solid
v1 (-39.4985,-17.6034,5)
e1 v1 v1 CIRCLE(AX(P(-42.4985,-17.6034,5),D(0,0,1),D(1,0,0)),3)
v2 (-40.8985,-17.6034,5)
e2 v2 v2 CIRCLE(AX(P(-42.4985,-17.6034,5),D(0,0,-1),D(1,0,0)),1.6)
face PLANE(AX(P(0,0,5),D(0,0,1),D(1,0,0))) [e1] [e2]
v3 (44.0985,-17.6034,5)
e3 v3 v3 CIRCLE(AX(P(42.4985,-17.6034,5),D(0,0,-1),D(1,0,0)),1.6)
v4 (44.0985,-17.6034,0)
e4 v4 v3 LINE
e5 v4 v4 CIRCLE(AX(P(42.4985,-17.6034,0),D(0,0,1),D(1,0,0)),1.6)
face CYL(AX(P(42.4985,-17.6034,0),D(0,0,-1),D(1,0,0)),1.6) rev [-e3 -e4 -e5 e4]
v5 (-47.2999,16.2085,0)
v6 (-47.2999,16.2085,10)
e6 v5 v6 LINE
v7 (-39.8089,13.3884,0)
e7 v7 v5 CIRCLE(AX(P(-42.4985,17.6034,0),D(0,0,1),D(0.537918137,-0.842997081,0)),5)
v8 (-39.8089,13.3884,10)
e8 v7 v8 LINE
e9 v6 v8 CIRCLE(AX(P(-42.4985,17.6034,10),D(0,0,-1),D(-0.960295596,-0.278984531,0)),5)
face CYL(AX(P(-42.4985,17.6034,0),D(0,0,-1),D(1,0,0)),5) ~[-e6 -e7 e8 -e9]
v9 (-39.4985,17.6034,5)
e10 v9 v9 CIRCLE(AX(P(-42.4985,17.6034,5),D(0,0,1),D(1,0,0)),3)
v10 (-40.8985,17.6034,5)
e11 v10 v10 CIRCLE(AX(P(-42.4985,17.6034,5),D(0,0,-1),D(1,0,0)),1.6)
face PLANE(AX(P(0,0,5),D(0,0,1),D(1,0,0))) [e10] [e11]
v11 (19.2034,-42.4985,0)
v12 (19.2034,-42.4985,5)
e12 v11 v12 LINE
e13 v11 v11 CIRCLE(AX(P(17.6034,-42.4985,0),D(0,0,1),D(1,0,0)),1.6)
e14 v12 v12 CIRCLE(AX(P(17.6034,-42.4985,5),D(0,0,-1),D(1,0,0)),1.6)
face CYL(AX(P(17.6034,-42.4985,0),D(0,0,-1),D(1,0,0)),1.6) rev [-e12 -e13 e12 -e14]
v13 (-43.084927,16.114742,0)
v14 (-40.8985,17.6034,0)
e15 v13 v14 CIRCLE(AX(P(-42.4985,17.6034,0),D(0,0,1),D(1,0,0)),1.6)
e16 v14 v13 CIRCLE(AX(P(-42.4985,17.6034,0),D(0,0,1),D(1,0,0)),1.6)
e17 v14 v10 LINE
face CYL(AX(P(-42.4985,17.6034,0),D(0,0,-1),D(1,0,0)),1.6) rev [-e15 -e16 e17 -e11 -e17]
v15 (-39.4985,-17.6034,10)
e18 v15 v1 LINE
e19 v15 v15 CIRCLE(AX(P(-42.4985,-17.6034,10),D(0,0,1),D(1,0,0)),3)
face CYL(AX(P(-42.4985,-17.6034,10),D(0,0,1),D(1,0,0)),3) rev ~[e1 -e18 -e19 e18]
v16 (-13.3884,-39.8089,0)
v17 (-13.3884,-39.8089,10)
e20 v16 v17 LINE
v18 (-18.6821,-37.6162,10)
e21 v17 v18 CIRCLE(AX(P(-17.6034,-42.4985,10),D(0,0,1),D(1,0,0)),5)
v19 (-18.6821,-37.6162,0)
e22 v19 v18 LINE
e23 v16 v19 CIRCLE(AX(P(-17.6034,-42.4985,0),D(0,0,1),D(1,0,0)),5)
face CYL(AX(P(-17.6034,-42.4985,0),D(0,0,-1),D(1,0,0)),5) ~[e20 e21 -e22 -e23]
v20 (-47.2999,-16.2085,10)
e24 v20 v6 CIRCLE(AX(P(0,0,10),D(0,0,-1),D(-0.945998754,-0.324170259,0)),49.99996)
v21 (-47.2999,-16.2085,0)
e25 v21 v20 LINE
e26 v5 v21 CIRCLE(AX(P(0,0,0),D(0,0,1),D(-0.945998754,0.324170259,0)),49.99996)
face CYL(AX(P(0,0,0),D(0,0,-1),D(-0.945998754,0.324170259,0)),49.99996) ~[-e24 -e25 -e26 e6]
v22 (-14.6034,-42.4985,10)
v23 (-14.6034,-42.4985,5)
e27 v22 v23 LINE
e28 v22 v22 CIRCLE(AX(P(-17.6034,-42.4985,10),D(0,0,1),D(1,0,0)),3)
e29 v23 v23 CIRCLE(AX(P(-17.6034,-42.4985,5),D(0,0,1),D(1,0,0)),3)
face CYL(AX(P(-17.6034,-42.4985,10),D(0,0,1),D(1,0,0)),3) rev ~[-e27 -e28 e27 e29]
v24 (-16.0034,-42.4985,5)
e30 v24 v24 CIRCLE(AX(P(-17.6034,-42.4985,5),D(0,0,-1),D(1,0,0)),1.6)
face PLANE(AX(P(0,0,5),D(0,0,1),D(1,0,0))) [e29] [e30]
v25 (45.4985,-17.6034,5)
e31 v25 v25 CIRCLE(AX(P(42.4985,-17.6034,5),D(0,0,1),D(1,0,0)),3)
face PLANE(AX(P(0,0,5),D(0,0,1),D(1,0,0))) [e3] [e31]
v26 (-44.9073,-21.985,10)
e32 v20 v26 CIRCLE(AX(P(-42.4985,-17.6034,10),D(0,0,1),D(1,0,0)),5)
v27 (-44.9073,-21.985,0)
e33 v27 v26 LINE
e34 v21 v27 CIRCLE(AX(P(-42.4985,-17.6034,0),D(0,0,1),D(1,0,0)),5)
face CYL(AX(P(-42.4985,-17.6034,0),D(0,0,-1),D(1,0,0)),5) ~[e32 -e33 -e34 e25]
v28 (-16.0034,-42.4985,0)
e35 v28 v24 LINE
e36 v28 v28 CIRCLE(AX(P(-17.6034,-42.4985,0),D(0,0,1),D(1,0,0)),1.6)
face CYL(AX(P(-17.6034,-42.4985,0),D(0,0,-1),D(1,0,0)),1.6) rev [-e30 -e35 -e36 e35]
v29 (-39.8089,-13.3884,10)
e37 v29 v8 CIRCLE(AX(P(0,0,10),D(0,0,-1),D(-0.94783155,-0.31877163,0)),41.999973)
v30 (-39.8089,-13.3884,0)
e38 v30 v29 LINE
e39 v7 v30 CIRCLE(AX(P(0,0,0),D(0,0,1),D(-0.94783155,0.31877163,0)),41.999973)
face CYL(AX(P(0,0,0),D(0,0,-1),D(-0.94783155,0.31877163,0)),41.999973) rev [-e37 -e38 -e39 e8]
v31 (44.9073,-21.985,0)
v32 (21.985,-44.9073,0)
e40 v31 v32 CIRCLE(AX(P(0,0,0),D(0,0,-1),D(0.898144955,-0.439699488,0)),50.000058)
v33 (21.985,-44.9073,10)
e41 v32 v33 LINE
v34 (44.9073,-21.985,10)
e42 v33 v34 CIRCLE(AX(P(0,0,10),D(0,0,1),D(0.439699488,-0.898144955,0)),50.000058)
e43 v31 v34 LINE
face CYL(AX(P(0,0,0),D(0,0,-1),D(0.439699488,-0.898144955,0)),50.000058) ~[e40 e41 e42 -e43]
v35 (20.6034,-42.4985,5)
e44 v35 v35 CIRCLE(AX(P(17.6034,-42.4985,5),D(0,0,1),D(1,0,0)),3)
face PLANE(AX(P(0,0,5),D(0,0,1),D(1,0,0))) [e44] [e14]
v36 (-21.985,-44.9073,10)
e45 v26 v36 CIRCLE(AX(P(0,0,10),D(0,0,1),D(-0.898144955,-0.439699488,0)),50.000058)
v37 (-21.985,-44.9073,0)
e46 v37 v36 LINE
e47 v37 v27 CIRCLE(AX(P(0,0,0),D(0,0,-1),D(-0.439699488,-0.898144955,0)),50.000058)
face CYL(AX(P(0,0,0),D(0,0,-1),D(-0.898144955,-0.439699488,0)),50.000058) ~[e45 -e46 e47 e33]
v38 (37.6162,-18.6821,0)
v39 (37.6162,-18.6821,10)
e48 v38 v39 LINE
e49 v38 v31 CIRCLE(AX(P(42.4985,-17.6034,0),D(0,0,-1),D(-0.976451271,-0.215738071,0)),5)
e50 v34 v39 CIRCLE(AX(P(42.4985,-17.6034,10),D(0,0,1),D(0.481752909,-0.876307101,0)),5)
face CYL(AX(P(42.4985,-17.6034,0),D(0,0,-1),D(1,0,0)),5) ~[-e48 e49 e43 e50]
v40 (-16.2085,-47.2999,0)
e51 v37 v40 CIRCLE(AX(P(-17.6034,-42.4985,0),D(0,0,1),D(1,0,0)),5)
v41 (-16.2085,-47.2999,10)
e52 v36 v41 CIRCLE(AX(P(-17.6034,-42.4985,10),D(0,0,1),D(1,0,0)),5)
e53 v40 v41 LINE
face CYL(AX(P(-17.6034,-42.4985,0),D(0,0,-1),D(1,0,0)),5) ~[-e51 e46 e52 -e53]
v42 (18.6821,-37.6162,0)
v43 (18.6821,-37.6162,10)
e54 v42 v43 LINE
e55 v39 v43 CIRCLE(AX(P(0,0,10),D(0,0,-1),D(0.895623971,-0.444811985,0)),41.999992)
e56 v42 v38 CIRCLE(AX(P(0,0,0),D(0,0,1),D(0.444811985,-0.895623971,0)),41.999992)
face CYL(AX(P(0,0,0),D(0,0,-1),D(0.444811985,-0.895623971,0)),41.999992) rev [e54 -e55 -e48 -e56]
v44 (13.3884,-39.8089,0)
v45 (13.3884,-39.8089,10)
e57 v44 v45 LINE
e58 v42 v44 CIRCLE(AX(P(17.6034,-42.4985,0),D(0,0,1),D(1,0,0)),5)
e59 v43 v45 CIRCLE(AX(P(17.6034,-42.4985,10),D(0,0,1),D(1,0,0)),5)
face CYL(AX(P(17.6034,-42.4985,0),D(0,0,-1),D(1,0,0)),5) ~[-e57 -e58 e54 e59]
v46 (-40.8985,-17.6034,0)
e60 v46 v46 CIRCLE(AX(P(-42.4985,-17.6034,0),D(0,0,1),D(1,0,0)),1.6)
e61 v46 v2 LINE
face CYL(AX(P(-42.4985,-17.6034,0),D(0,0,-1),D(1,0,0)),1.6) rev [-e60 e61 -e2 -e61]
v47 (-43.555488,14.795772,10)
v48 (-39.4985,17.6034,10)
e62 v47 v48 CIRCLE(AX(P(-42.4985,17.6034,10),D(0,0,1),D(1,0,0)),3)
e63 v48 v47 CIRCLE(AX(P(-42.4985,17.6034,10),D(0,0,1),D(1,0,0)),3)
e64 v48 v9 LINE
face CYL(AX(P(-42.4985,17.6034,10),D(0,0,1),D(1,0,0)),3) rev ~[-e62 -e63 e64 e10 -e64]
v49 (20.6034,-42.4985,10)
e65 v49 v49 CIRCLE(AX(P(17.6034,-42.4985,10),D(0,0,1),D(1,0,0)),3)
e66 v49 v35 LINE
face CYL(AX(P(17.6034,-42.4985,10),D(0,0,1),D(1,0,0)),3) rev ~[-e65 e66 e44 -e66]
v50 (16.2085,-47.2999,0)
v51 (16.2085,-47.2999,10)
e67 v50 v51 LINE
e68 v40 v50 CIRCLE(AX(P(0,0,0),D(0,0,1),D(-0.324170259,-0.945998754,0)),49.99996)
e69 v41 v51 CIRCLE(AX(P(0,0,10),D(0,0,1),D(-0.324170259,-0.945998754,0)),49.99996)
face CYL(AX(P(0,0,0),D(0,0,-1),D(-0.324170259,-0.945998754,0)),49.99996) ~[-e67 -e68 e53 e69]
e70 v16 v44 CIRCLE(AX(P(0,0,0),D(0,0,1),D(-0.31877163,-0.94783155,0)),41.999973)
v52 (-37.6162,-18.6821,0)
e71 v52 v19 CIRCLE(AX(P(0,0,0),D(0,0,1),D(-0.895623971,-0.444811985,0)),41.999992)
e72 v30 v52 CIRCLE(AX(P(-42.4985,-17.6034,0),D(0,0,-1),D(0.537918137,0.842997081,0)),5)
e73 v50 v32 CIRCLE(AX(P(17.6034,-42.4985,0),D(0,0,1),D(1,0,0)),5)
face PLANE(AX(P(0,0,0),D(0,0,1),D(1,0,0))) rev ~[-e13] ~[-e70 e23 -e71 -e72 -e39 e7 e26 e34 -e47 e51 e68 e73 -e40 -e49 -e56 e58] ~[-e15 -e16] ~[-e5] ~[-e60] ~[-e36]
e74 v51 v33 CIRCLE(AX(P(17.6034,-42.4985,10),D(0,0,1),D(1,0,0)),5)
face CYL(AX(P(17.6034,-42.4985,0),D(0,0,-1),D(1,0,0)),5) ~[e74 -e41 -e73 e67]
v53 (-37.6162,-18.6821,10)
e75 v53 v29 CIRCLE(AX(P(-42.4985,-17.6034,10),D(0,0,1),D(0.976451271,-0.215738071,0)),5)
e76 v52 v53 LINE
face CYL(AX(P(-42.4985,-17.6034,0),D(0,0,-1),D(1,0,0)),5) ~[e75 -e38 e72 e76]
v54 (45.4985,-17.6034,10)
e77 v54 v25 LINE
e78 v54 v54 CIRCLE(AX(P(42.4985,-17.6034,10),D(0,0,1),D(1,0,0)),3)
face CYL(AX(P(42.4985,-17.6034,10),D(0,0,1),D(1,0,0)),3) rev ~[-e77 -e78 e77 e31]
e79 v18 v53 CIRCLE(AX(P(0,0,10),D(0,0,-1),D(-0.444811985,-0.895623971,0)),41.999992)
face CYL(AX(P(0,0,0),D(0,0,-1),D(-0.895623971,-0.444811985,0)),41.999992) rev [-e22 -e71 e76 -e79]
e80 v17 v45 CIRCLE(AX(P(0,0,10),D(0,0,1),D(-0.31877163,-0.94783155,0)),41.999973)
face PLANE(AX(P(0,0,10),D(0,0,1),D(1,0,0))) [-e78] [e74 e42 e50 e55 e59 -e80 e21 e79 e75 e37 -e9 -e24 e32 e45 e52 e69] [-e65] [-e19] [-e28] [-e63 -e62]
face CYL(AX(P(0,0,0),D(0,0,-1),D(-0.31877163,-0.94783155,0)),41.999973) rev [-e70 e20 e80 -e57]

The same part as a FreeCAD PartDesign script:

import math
import FreeCAD as App
import Part
import Sketcher

V = App.Vector

doc = App.newDocument("Part")
body = doc.addObject("PartDesign::Body", "Body")

# Sketch on XY plane
sketch1 = body.newObject("Sketcher::SketchObject", "Sketch")
sketch1.AttachmentSupport = (doc.getObject("XY_Plane"), [""])
sketch1.MapMode = "FlatFace"
sketch1.addGeometry(Part.ArcOfCircle(Part.Circle(V(0, 0, 0), V(0, 0, 1), 50), math.radians(161), math.radians(199)), False)
sketch1.addGeometry(Part.ArcOfCircle(Part.Circle(V(-42.5, -17.6, 0), V(0, 0, 1), 5), math.radians(164), math.radians(241)), False)
sketch1.addGeometry(Part.ArcOfCircle(Part.Circle(V(0, 0, 0), V(0, 0, 1), 50), math.radians(-154), math.radians(-116)), False)
sketch1.addGeometry(Part.ArcOfCircle(Part.Circle(V(-17.6, -42.5, 0), V(0, 0, 1), 5), math.radians(-151), math.radians(-74)), False)
sketch1.addGeometry(Part.ArcOfCircle(Part.Circle(V(0, 0, 0), V(0, 0, 1), 50), math.radians(-109), math.radians(-71)), False)
sketch1.addGeometry(Part.ArcOfCircle(Part.Circle(V(17.6, -42.5, 0), V(0, 0, 1), 5), math.radians(-106), math.radians(-29)), False)
sketch1.addGeometry(Part.ArcOfCircle(Part.Circle(V(0, 0, 0), V(0, 0, 1), 50), math.radians(-64), math.radians(-26)), False)
sketch1.addGeometry(Part.ArcOfCircle(Part.Circle(V(42.5, -17.6, 0), V(0, 0, 1), 5), math.radians(-61), math.radians(192)), False)
sketch1.addGeometry(Part.ArcOfCircle(Part.Circle(V(0, 0, 0), V(0, 0, 1), 42), math.radians(-64), math.radians(-26)), False)
sketch1.addGeometry(Part.ArcOfCircle(Part.Circle(V(17.6, -42.5, 0), V(0, 0, 1), 5), math.radians(78), math.radians(147)), False)
sketch1.addGeometry(Part.ArcOfCircle(Part.Circle(V(0, 0, 0), V(0, 0, 1), 42), math.radians(-109), math.radians(-71)), False)
sketch1.addGeometry(Part.ArcOfCircle(Part.Circle(V(-17.6, -42.5, 0), V(0, 0, 1), 5), math.radians(33), math.radians(102)), False)
sketch1.addGeometry(Part.ArcOfCircle(Part.Circle(V(0, 0, 0), V(0, 0, 1), 42), math.radians(-154), math.radians(-116)), False)
sketch1.addGeometry(Part.ArcOfCircle(Part.Circle(V(-42.5, -17.6, 0), V(0, 0, 1), 5), math.radians(-12), math.radians(57)), False)
sketch1.addGeometry(Part.ArcOfCircle(Part.Circle(V(0, 0, 0), V(0, 0, 1), 42), math.radians(161), math.radians(199)), False)
sketch1.addGeometry(Part.ArcOfCircle(Part.Circle(V(-42.5, 17.6, 0), V(0, 0, 1), 5), math.radians(-57), math.radians(196)), False)
sketch1.addGeometry(Part.Circle(V(-42.5, 17.6, 0), V(0, 0, 1), 1.6), False)
sketch1.addGeometry(Part.Circle(V(-42.5, -17.6, 0), V(0, 0, 1), 1.6), False)
sketch1.addGeometry(Part.Circle(V(-17.6, -42.5, 0), V(0, 0, 1), 1.6), False)
sketch1.addGeometry(Part.Circle(V(17.6, -42.5, 0), V(0, 0, 1), 1.6), False)
sketch1.addGeometry(Part.Circle(V(42.5, -17.6, 0), V(0, 0, 1), 1.6), False)
sketch1.addConstraint(Sketcher.Constraint("Coincident", 0, 2, 1, 1))
sketch1.addConstraint(Sketcher.Constraint("Coincident", 1, 2, 2, 1))
sketch1.addConstraint(Sketcher.Constraint("Coincident", 2, 2, 3, 1))
sketch1.addConstraint(Sketcher.Constraint("Coincident", 3, 2, 4, 1))
sketch1.addConstraint(Sketcher.Constraint("Coincident", 4, 2, 5, 1))
sketch1.addConstraint(Sketcher.Constraint("Coincident", 5, 2, 6, 1))
sketch1.addConstraint(Sketcher.Constraint("Coincident", 6, 2, 7, 1))
sketch1.addConstraint(Sketcher.Constraint("Coincident", 7, 2, 8, 2))
sketch1.addConstraint(Sketcher.Constraint("Coincident", 8, 1, 9, 1))
sketch1.addConstraint(Sketcher.Constraint("Coincident", 9, 2, 10, 2))
sketch1.addConstraint(Sketcher.Constraint("Coincident", 10, 1, 11, 1))
sketch1.addConstraint(Sketcher.Constraint("Coincident", 11, 2, 12, 2))
sketch1.addConstraint(Sketcher.Constraint("Coincident", 12, 1, 13, 1))
sketch1.addConstraint(Sketcher.Constraint("Coincident", 13, 2, 14, 2))
sketch1.addConstraint(Sketcher.Constraint("Coincident", 14, 1, 15, 1))
sketch1.addConstraint(Sketcher.Constraint("Coincident", 15, 2, 0, 1))
sketch1.addConstraint(Sketcher.Constraint("Coincident", 0, 3, -1, 1))
sketch1.addConstraint(Sketcher.Constraint("Coincident", 2, 3, -1, 1))
sketch1.addConstraint(Sketcher.Constraint("Coincident", 4, 3, -1, 1))
sketch1.addConstraint(Sketcher.Constraint("Coincident", 6, 3, -1, 1))
sketch1.addConstraint(Sketcher.Constraint("Coincident", 8, 3, -1, 1))
sketch1.addConstraint(Sketcher.Constraint("Coincident", 10, 3, -1, 1))
sketch1.addConstraint(Sketcher.Constraint("Coincident", 12, 3, -1, 1))
sketch1.addConstraint(Sketcher.Constraint("Coincident", 14, 3, -1, 1))
sketch1.addConstraint(Sketcher.Constraint("Coincident", 9, 3, 5, 3))
sketch1.addConstraint(Sketcher.Constraint("Coincident", 11, 3, 3, 3))
sketch1.addConstraint(Sketcher.Constraint("Coincident", 13, 3, 1, 3))
sketch1.addConstraint(Sketcher.Constraint("Coincident", 16, 3, 15, 3))
sketch1.addConstraint(Sketcher.Constraint("Coincident", 17, 3, 1, 3))
sketch1.addConstraint(Sketcher.Constraint("Coincident", 18, 3, 3, 3))
sketch1.addConstraint(Sketcher.Constraint("Coincident", 19, 3, 5, 3))
sketch1.addConstraint(Sketcher.Constraint("Coincident", 20, 3, 7, 3))
sketch1.addConstraint(Sketcher.Constraint("Equal", 0, 2))
sketch1.addConstraint(Sketcher.Constraint("Equal", 1, 3))
sketch1.addConstraint(Sketcher.Constraint("Equal", 2, 4))
sketch1.addConstraint(Sketcher.Constraint("Equal", 3, 5))
sketch1.addConstraint(Sketcher.Constraint("Equal", 4, 6))
sketch1.addConstraint(Sketcher.Constraint("Equal", 5, 7))
sketch1.addConstraint(Sketcher.Constraint("Equal", 7, 9))
sketch1.addConstraint(Sketcher.Constraint("Equal", 8, 10))
sketch1.addConstraint(Sketcher.Constraint("Equal", 9, 11))
sketch1.addConstraint(Sketcher.Constraint("Equal", 10, 12))
sketch1.addConstraint(Sketcher.Constraint("Equal", 11, 13))
sketch1.addConstraint(Sketcher.Constraint("Equal", 12, 14))
sketch1.addConstraint(Sketcher.Constraint("Equal", 13, 15))
sketch1.addConstraint(Sketcher.Constraint("Equal", 16, 17))
sketch1.addConstraint(Sketcher.Constraint("Equal", 17, 18))
sketch1.addConstraint(Sketcher.Constraint("Equal", 18, 19))
sketch1.addConstraint(Sketcher.Constraint("Equal", 19, 20))
sketch1.addConstraint(Sketcher.Constraint("Symmetric", 7, 3, 15, 3, -1, 1))
sketch1.addConstraint(Sketcher.Constraint("Symmetric", 3, 3, 5, 3, -2))
sketch1.addConstraint(Sketcher.Constraint("Symmetric", 1, 3, 7, 3, -2))
sketch1.addConstraint(Sketcher.Constraint("Radius", 1, 5.0))
sketch1.addConstraint(Sketcher.Constraint("Diameter", 16, 3.2))
sketch1.addConstraint(Sketcher.Constraint("Radius", 0, 50.0))
sketch1.addConstraint(Sketcher.Constraint("Radius", 8, 42.0))
sketch1.addConstraint(Sketcher.Constraint("DistanceX", 0, 2, -1, 1, 47.3))
sketch1.addConstraint(Sketcher.Constraint("DistanceY", 3, 2, -1, 1, 47.3))
sketch1.addConstraint(Sketcher.Constraint("DistanceX", 9, 2, 4, 2, 2.82))
sketch1.addConstraint(Sketcher.Constraint("DistanceY", 0, 2, 13, 2, 2.82))
pad1 = body.newObject("PartDesign::Pad", "Pad")
pad1.Profile = sketch1
pad1.Length = 10

# Sketch on XY plane
sketch2 = body.newObject("Sketcher::SketchObject", "Sketch001")
sketch2.AttachmentSupport = (doc.getObject("XY_Plane"), [""])
sketch2.MapMode = "FlatFace"
sketch2.AttachmentOffset = App.Placement(V(0, 0, 10), App.Rotation())
sketch2.addGeometry(Part.Circle(V(-42.5, -17.6, 0), V(0, 0, 1), 3), False)
sketch2.addGeometry(Part.Circle(V(-42.5, 17.6, 0), V(0, 0, 1), 3), False)
sketch2.addGeometry(Part.Circle(V(-17.6, -42.5, 0), V(0, 0, 1), 3), False)
sketch2.addGeometry(Part.Circle(V(17.6, -42.5, 0), V(0, 0, 1), 3), False)
sketch2.addGeometry(Part.Circle(V(42.5, -17.6, 0), V(0, 0, 1), 3), False)
sketch2.addConstraint(Sketcher.Constraint("Equal", 0, 1))
sketch2.addConstraint(Sketcher.Constraint("Equal", 1, 2))
sketch2.addConstraint(Sketcher.Constraint("Equal", 2, 3))
sketch2.addConstraint(Sketcher.Constraint("Equal", 3, 4))
sketch2.addConstraint(Sketcher.Constraint("Symmetric", 1, 3, 4, 3, -1, 1))
sketch2.addConstraint(Sketcher.Constraint("Symmetric", 2, 3, 3, 3, -2))
sketch2.addConstraint(Sketcher.Constraint("Symmetric", 0, 3, 4, 3, -2))
sketch2.addConstraint(Sketcher.Constraint("Diameter", 0, 6.0))
sketch2.addConstraint(Sketcher.Constraint("DistanceX", 0, 3, 2, 3, 24.895))
sketch2.addConstraint(Sketcher.Constraint("DistanceY", 2, 3, 0, 3, 24.895))
sketch2.addConstraint(Sketcher.Constraint("DistanceY", 2, 3, 1, 3, 60.102))
sketch2.addConstraint(Sketcher.Constraint("DistanceX", 0, 3, 3, 3, 60.102))
pocket1 = body.newObject("PartDesign::Pocket", "Pocket")
pocket1.Profile = sketch2
pocket1.Length = 5

doc.recompute()
